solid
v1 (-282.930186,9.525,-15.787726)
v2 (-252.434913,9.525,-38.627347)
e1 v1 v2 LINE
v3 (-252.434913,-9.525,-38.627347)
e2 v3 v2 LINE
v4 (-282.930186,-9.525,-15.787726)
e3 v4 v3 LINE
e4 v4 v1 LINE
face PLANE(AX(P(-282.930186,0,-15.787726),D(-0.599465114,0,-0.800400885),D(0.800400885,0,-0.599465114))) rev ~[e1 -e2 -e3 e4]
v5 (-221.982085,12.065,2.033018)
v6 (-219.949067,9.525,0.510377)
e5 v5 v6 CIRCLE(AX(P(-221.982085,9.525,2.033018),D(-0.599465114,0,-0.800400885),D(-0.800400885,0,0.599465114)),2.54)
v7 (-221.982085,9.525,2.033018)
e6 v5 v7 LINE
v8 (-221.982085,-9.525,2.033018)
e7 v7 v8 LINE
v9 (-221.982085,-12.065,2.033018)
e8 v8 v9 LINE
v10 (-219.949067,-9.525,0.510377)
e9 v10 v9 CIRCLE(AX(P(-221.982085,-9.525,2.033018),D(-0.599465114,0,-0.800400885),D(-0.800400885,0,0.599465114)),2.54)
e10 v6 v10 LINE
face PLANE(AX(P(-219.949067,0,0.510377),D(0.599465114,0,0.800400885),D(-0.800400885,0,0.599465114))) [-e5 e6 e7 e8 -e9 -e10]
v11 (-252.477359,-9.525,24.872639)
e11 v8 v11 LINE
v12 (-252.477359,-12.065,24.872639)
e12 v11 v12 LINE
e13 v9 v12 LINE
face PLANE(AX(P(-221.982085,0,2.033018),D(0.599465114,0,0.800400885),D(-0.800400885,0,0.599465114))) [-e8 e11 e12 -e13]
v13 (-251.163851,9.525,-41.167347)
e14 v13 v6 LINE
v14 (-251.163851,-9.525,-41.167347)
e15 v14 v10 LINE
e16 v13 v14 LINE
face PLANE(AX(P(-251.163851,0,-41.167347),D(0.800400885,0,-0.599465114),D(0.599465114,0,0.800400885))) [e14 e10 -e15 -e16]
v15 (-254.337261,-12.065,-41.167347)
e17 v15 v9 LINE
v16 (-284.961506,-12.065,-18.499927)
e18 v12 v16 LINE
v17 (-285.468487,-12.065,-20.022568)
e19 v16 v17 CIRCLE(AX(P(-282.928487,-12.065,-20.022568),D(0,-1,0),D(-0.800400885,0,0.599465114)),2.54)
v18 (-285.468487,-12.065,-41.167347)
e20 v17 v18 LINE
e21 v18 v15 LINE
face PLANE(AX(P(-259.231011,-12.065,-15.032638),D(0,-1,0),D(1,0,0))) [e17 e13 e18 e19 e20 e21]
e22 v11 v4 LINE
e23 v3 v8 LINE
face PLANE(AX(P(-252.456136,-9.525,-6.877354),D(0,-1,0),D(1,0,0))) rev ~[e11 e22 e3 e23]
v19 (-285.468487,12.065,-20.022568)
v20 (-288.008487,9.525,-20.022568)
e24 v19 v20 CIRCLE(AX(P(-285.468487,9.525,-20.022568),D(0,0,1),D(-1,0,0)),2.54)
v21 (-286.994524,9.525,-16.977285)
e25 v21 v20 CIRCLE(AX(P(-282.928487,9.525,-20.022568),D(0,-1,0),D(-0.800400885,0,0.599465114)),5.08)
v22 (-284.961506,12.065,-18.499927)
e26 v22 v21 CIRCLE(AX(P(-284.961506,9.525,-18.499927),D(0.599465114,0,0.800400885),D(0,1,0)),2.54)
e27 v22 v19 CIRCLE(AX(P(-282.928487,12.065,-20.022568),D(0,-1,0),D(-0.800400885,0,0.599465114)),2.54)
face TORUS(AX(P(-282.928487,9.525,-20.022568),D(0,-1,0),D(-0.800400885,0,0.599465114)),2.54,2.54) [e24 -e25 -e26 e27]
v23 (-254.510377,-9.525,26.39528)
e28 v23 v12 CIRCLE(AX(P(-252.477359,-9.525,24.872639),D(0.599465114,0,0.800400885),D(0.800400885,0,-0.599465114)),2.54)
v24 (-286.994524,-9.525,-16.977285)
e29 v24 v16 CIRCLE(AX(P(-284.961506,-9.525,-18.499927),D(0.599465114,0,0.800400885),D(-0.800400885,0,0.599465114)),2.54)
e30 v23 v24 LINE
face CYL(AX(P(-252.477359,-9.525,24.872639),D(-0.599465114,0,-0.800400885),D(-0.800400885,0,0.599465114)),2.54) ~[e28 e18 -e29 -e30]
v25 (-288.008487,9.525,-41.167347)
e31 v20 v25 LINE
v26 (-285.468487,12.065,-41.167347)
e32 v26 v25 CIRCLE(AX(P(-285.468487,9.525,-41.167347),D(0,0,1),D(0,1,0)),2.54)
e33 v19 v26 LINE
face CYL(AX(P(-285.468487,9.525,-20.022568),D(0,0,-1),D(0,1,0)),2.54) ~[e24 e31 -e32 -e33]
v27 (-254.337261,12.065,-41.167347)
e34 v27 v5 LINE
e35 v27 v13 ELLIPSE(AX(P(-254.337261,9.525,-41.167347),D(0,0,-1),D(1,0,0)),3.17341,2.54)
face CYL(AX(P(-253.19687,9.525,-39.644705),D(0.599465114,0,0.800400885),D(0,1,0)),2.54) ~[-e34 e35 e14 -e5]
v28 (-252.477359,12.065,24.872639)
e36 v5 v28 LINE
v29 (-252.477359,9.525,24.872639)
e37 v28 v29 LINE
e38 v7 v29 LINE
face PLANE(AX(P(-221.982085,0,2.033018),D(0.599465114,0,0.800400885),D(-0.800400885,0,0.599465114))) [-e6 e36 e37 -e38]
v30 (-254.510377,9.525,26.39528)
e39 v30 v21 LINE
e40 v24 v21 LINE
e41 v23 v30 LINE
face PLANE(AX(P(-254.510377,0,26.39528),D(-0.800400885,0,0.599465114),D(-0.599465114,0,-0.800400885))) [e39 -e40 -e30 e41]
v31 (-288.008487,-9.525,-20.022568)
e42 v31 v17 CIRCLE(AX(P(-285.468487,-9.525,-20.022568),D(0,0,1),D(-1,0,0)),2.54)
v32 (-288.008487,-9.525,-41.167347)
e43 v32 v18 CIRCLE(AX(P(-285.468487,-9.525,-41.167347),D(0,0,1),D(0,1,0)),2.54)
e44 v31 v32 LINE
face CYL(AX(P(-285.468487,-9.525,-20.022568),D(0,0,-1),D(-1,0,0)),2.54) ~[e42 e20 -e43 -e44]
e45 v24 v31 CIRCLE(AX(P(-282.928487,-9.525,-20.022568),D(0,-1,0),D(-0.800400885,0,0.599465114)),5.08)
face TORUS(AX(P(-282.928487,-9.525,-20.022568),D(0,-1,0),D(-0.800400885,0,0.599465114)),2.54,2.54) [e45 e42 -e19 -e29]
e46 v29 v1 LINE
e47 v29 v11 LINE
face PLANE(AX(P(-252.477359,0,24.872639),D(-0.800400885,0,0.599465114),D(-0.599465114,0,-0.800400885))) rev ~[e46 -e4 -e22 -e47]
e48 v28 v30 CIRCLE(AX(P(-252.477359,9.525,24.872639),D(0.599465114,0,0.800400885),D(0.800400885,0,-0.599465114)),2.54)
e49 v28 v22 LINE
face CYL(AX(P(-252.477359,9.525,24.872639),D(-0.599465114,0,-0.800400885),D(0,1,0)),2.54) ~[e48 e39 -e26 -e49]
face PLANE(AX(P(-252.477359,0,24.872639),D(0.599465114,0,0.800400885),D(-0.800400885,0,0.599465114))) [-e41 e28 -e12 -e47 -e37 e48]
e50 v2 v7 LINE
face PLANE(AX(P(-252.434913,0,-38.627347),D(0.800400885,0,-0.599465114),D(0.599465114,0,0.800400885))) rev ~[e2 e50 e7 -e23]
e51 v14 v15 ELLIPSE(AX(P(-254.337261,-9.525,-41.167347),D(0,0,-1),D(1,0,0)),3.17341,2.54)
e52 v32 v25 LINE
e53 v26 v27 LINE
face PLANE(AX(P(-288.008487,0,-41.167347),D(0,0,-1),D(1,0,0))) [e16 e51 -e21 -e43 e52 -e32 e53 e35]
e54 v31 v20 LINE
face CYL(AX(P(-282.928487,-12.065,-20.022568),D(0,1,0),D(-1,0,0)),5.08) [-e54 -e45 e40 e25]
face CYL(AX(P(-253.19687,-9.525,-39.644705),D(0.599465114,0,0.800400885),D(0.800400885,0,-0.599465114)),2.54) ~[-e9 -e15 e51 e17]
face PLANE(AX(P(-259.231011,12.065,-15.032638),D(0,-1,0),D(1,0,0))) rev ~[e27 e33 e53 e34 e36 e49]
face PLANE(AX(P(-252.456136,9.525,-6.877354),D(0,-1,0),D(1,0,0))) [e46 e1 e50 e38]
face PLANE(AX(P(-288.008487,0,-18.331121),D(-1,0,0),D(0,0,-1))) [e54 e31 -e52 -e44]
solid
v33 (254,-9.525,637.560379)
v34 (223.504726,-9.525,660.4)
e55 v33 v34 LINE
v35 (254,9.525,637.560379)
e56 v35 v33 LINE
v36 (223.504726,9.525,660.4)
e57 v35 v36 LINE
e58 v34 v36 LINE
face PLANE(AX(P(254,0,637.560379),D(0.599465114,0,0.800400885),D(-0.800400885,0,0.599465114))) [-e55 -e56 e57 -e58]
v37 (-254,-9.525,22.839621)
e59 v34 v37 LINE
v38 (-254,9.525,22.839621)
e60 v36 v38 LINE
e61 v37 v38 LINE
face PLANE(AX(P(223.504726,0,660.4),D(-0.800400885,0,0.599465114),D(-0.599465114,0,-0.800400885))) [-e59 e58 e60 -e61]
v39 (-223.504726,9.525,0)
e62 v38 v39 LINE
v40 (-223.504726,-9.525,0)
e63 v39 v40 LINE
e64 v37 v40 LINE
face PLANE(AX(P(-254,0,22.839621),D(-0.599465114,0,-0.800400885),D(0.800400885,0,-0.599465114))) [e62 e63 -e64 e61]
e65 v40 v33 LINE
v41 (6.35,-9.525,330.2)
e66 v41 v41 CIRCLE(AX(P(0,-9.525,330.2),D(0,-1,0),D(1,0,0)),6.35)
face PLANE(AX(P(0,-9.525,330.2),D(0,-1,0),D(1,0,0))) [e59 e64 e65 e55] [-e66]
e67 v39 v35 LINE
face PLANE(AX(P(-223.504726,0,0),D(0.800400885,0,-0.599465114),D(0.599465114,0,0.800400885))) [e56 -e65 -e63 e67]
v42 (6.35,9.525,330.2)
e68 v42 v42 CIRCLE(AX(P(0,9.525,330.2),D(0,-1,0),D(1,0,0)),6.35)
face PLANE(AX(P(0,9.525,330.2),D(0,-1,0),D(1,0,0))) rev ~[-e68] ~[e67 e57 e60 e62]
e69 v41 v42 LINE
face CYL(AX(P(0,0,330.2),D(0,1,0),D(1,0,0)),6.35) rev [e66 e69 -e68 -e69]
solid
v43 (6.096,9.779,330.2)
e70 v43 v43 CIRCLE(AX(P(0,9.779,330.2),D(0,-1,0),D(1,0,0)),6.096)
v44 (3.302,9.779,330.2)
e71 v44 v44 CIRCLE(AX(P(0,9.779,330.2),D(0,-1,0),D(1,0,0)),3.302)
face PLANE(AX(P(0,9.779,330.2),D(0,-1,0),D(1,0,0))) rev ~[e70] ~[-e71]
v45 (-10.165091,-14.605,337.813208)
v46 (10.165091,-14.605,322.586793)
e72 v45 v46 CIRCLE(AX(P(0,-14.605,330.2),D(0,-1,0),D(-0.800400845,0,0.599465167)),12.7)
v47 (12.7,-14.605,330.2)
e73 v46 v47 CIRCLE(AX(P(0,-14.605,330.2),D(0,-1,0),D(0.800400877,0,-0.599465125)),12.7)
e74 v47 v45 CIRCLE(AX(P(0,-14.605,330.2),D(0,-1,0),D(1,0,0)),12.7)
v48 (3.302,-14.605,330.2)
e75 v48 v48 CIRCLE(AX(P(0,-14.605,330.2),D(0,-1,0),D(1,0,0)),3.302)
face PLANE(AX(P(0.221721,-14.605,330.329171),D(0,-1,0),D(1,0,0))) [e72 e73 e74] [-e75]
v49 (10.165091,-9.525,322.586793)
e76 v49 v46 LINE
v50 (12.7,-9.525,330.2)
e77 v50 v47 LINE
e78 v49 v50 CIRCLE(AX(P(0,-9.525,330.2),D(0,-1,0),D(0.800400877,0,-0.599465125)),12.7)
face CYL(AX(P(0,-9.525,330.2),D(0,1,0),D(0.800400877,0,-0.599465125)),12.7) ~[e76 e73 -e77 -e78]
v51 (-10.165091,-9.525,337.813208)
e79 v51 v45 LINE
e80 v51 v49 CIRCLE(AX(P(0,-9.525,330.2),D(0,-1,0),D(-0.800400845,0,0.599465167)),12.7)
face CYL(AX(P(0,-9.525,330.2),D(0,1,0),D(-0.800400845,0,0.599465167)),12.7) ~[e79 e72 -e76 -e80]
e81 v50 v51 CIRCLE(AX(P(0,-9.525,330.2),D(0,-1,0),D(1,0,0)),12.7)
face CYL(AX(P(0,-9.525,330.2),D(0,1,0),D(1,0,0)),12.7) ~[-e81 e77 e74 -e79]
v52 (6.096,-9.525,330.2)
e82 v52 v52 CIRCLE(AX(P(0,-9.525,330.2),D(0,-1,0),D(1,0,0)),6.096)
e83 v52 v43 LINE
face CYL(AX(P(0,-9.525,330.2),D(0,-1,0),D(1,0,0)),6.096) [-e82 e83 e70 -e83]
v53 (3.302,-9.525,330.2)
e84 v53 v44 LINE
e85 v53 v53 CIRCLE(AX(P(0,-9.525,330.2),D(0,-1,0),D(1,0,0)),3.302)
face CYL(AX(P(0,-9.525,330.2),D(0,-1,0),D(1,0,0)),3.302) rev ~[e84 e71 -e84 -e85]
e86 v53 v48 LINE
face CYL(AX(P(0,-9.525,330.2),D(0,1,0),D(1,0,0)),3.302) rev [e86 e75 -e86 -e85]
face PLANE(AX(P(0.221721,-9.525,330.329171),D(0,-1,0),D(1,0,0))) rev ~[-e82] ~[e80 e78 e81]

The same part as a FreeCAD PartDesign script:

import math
import FreeCAD as App
import Part
import Sketcher
from FreeCAD import Vector
Q = App.Units.Quantity


def edges_at(feature, points):
    """Names of the edges that pass closest to the given points."""
    edges = feature.Shape.Edges
    near = lambda p: min(range(len(edges)), key=lambda i: edges[i].distToShape(Part.Vertex(*p))[0])
    return sorted({f"Edge{near(p) + 1}" for p in points})

doc = App.newDocument("Part")
body = doc.addObject("PartDesign::Body", "Body")

# Sketch on XZ plane
sketch1 = body.newObject("Sketcher::SketchObject", "Sketch")
sketch1.AttachmentSupport = (doc.getObject("XZ_Plane"), [""])
sketch1.MapMode = "FlatFace"
sketch1.addGeometry([
    Part.LineSegment(Vector(-254, 22.839621, 0), Vector(-223.504726, 0, 0)),  # 0
    Part.LineSegment(Vector(-223.504726, 0, 0), Vector(254, 637.560379, 0)),  # 1
    Part.LineSegment(Vector(254, 637.560379, 0), Vector(223.504726, 660.4, 0)),  # 2
    Part.LineSegment(Vector(223.504726, 660.4, 0), Vector(-254, 22.839621, 0)),  # 3
    Part.Circle(Vector(0, 330.2, 0), Vector(0, 0, 1), 6.35),  # 4
], False)
sketch1.addConstraint([
    Sketcher.Constraint("Coincident", 0, 2, 1, 1),
    Sketcher.Constraint("Coincident", 1, 2, 2, 1),
    Sketcher.Constraint("Coincident", 2, 2, 3, 1),
    Sketcher.Constraint("Coincident", 3, 2, 0, 1),
    Sketcher.Constraint("PointOnObject", 4, 3, -2),
    Sketcher.Constraint("PointOnObject", 0, 2, -1),
    Sketcher.Constraint("Perpendicular", 0, 1),
    Sketcher.Constraint("Perpendicular", 1, 2),
    Sketcher.Constraint("Perpendicular", 2, 3),
    Sketcher.Constraint("Diameter", 4, Q("0.5 in")),
    Sketcher.Constraint("DistanceY", -1, 1, 4, 3, Q("13 in")),
    Sketcher.Constraint("DistanceX", -1, 1, 1, 2, Q("10 in")),
    Sketcher.Constraint("DistanceY", -1, 1, 2, 2, Q("26 in")),
    Sketcher.Constraint("DistanceX", 3, 2, -1, 1, Q("10 in")),
    Sketcher.Constraint("Distance", 0, Q("1.5 in")),
])
pad1 = body.newObject("PartDesign::Pad", "Pad")
pad1.Profile = sketch1
pad1.Length = Q("0.75 in")
pad1.Midplane = True
body2 = doc.addObject("PartDesign::Body", "Body001")

# Sketch on XZ plane
sketch2 = body2.newObject("Sketcher::SketchObject", "Sketch001")
sketch2.AttachmentSupport = (doc.getObject("XZ_Plane001"), [""])
sketch2.MapMode = "FlatFace"
sketch2.addGeometry([
    Part.LineSegment(Vector(-288.008487, -41.167347, 0), Vector(-251.163851, -41.167347, 0)),  # 0
    Part.LineSegment(Vector(-251.163851, -41.167347, 0), Vector(-219.949067, 0.510377, 0)),  # 1
    Part.LineSegment(Vector(-219.949067, 0.510377, 0), Vector(-221.982085, 2.033018, 0)),  # 2
    Part.LineSegment(Vector(-221.982085, 2.033018, 0), Vector(-252.477359, 24.872639, 0)),  # 3
    Part.LineSegment(Vector(-252.477359, 24.872639, 0), Vector(-254.510377, 26.39528, 0)),  # 4
    Part.LineSegment(Vector(-254.510377, 26.39528, 0), Vector(-288.008487, -18.331121, 0)),  # 5
    Part.LineSegment(Vector(-288.008487, -18.331121, 0), Vector(-288.008487, -41.167347, 0)),  # 6
], False)
sketch2.addConstraint([
    Sketcher.Constraint("Coincident", 0, 2, 1, 1),
    Sketcher.Constraint("Coincident", 1, 2, 2, 1),
    Sketcher.Constraint("Coincident", 2, 2, 3, 1),
    Sketcher.Constraint("Coincident", 3, 2, 4, 1),
    Sketcher.Constraint("Coincident", 4, 2, 5, 1),
    Sketcher.Constraint("Coincident", 5, 2, 6, 1),
    Sketcher.Constraint("Coincident", 6, 2, 0, 1),
    Sketcher.Constraint("Horizontal", 0),
    Sketcher.Constraint("Vertical", 6),
    Sketcher.Constraint("Perpendicular", 1, 2),
    Sketcher.Constraint("Parallel", 2, 3),
    Sketcher.Constraint("Parallel", 3, 4),
    Sketcher.Constraint("Perpendicular", 4, 5),
    Sketcher.Constraint("Equal", 2, 4),
    Sketcher.Constraint("Distance", 2, Q("0.1 in")),
    Sketcher.Constraint("Distance", 3, Q("1.5 in")),
    Sketcher.Constraint("Distance", 5, Q("2.2 in")),
    Sketcher.Constraint("DistanceY", 5, 2, 4, 2, Q("44.726401 mm")),
    Sketcher.Constraint("Distance", 1, Q("52.071061 mm")),
    Sketcher.Constraint("DistanceX", 0, 2, -1, 1, Q("251.163851 mm")),
    Sketcher.Constraint("DistanceY", -1, 1, 2, 2, Q("2.033018 mm")),
])
pad2 = body2.newObject("PartDesign::Pad", "Pad001")
pad2.Profile = sketch2
pad2.Length = Q("0.95 in")
pad2.Midplane = True

# Sketch on XZ plane
sketch3 = body2.newObject("Sketcher::SketchObject", "Sketch002")
sketch3.AttachmentSupport = (doc.getObject("XZ_Plane001"), [""])
sketch3.MapMode = "FlatFace"
sketch3.addGeometry([
    Part.LineSegment(Vector(-252.434913, -38.627347, 0), Vector(-221.982085, 2.033018, 0)),
    Part.LineSegment(Vector(-221.982085, 2.033018, 0), Vector(-252.477359, 24.872639, 0)),
    Part.LineSegment(Vector(-252.477359, 24.872639, 0), Vector(-282.930186, -15.787726, 0)),
    Part.LineSegment(Vector(-282.930186, -15.787726, 0), Vector(-252.434913, -38.627347, 0)),
], False)
sketch3.addConstraint([
    Sketcher.Constraint("Coincident", 0, 2, 1, 1),
    Sketcher.Constraint("Coincident", 1, 2, 2, 1),
    Sketcher.Constraint("Coincident", 2, 2, 3, 1),
    Sketcher.Constraint("Coincident", 3, 2, 0, 1),
    Sketcher.Constraint("Perpendicular", 0, 1),
    Sketcher.Constraint("Perpendicular", 1, 2),
    Sketcher.Constraint("Perpendicular", 2, 3),
    Sketcher.Constraint("Distance", 0, Q("2 in")),
    Sketcher.Constraint("Distance", 1, Q("1.5 in")),
    Sketcher.Constraint("DistanceX", 2, 2, 0, 2, Q("60.948102 mm")),
    Sketcher.Constraint("DistanceY", -1, 1, 0, 2, Q("2.033018 mm")),
    Sketcher.Constraint("DistanceX", 1, 2, -1, 1, Q("252.477359 mm")),
])
pocket1 = body2.newObject("PartDesign::Pocket", "Pocket")
pocket1.Profile = sketch3
pocket1.Length = Q("0.75 in")
pocket1.Midplane = True
doc.recompute()

fillet = body2.newObject("PartDesign::Fillet", "Fillet")
fillet.Base = (pocket1, edges_at(pocket1, [(-288.008, 0, -18.331)]))
fillet.Radius = Q("0.2 in")
doc.recompute()

fillet2 = body2.newObject("PartDesign::Fillet", "Fillet001")
fillet2.Base = (fillet, edges_at(fillet, [
    (-270.752, -12.065, 4.709),
    (-235.556, -12.065, -20.328),
    (-235.556, 12.065, -20.328),
    (-270.752, 12.065, 4.709),
]))
fillet2.Radius = Q("0.1 in")
body3 = doc.addObject("PartDesign::Body", "Body002")

# Sketch on XZ plane
sketch4 = body3.newObject("Sketcher::SketchObject", "Sketch003")
sketch4.AttachmentSupport = (doc.getObject("XZ_Plane002"), [""])
sketch4.MapMode = "FlatFace"
sketch4.AttachmentOffset = App.Placement(Vector(0, 0, 0.375 * 25.4), App.Rotation())
sketch4.addGeometry([
    Part.ArcOfCircle(Part.Circle(Vector(0, 330.2, 0), Vector(0, 0, 1), 12.7), math.radians(0), math.radians(143.168397)),
    Part.ArcOfCircle(Part.Circle(Vector(0, 330.2, 0), Vector(0, 0, 1), 12.7), math.radians(143.168397), math.radians(323.1684)),
    Part.ArcOfCircle(Part.Circle(Vector(0, 330.2, 0), Vector(0, 0, 1), 12.7), math.radians(-36.8316), math.radians(0)),
    Part.Circle(Vector(0, 330.2, 0), Vector(0, 0, 1), 3.302),
], False)
sketch4.addConstraint([
    Sketcher.Constraint("Tangent", 0, 2, 1, 1),
    Sketcher.Constraint("Tangent", 1, 2, 2, 1),
    Sketcher.Constraint("Tangent", 2, 2, 0, 1),
    Sketcher.Constraint("Coincident", 3, 3, 0, 3),
    Sketcher.Constraint("PointOnObject", 0, 3, -2),
    Sketcher.Constraint("Horizontal", 3, 3, 2, 2),
    Sketcher.Constraint("Radius", 0, Q("0.5 in")),
    Sketcher.Constraint("Diameter", 3, Q("0.26 in")),
    Sketcher.Constraint("DistanceY", -1, 1, 0, 3, Q("13 in")),
    Sketcher.Constraint("DistanceX", 0, 2, -1, 1, Q("10.165091 mm")),
    Sketcher.Constraint("DistanceX", -1, 1, 1, 2, Q("10.165091 mm")),
])
pad3 = body3.newObject("PartDesign::Pad", "Pad002")
pad3.Profile = sketch4
pad3.Length = Q("0.2 in")

# Sketch on XZ plane
sketch5 = body3.newObject("Sketcher::SketchObject", "Sketch004")
sketch5.AttachmentSupport = (doc.getObject("XZ_Plane002"), [""])
sketch5.MapMode = "FlatFace"
sketch5.AttachmentOffset = App.Placement(Vector(0, 0, 0.375 * 25.4), App.Rotation())
sketch5.addGeometry([
    Part.Circle(Vector(0, 330.2, 0), Vector(0, 0, 1), 6.096),
    Part.Circle(Vector(0, 330.2, 0), Vector(0, 0, 1), 3.302),
], False)
sketch5.addConstraint([
    Sketcher.Constraint("Coincident", 1, 3, 0, 3),
    Sketcher.Constraint("PointOnObject", 0, 3, -2),
    Sketcher.Constraint("Diameter", 0, Q("0.48 in")),
    Sketcher.Constraint("Diameter", 1, Q("0.26 in")),
    Sketcher.Constraint("DistanceY", -1, 1, 0, 3, Q("13 in")),
])
pad4 = body3.newObject("PartDesign::Pad", "Pad003")
pad4.Profile = sketch5
pad4.Length = Q("0.76 in")
pad4.Reversed = True

doc.recompute()
